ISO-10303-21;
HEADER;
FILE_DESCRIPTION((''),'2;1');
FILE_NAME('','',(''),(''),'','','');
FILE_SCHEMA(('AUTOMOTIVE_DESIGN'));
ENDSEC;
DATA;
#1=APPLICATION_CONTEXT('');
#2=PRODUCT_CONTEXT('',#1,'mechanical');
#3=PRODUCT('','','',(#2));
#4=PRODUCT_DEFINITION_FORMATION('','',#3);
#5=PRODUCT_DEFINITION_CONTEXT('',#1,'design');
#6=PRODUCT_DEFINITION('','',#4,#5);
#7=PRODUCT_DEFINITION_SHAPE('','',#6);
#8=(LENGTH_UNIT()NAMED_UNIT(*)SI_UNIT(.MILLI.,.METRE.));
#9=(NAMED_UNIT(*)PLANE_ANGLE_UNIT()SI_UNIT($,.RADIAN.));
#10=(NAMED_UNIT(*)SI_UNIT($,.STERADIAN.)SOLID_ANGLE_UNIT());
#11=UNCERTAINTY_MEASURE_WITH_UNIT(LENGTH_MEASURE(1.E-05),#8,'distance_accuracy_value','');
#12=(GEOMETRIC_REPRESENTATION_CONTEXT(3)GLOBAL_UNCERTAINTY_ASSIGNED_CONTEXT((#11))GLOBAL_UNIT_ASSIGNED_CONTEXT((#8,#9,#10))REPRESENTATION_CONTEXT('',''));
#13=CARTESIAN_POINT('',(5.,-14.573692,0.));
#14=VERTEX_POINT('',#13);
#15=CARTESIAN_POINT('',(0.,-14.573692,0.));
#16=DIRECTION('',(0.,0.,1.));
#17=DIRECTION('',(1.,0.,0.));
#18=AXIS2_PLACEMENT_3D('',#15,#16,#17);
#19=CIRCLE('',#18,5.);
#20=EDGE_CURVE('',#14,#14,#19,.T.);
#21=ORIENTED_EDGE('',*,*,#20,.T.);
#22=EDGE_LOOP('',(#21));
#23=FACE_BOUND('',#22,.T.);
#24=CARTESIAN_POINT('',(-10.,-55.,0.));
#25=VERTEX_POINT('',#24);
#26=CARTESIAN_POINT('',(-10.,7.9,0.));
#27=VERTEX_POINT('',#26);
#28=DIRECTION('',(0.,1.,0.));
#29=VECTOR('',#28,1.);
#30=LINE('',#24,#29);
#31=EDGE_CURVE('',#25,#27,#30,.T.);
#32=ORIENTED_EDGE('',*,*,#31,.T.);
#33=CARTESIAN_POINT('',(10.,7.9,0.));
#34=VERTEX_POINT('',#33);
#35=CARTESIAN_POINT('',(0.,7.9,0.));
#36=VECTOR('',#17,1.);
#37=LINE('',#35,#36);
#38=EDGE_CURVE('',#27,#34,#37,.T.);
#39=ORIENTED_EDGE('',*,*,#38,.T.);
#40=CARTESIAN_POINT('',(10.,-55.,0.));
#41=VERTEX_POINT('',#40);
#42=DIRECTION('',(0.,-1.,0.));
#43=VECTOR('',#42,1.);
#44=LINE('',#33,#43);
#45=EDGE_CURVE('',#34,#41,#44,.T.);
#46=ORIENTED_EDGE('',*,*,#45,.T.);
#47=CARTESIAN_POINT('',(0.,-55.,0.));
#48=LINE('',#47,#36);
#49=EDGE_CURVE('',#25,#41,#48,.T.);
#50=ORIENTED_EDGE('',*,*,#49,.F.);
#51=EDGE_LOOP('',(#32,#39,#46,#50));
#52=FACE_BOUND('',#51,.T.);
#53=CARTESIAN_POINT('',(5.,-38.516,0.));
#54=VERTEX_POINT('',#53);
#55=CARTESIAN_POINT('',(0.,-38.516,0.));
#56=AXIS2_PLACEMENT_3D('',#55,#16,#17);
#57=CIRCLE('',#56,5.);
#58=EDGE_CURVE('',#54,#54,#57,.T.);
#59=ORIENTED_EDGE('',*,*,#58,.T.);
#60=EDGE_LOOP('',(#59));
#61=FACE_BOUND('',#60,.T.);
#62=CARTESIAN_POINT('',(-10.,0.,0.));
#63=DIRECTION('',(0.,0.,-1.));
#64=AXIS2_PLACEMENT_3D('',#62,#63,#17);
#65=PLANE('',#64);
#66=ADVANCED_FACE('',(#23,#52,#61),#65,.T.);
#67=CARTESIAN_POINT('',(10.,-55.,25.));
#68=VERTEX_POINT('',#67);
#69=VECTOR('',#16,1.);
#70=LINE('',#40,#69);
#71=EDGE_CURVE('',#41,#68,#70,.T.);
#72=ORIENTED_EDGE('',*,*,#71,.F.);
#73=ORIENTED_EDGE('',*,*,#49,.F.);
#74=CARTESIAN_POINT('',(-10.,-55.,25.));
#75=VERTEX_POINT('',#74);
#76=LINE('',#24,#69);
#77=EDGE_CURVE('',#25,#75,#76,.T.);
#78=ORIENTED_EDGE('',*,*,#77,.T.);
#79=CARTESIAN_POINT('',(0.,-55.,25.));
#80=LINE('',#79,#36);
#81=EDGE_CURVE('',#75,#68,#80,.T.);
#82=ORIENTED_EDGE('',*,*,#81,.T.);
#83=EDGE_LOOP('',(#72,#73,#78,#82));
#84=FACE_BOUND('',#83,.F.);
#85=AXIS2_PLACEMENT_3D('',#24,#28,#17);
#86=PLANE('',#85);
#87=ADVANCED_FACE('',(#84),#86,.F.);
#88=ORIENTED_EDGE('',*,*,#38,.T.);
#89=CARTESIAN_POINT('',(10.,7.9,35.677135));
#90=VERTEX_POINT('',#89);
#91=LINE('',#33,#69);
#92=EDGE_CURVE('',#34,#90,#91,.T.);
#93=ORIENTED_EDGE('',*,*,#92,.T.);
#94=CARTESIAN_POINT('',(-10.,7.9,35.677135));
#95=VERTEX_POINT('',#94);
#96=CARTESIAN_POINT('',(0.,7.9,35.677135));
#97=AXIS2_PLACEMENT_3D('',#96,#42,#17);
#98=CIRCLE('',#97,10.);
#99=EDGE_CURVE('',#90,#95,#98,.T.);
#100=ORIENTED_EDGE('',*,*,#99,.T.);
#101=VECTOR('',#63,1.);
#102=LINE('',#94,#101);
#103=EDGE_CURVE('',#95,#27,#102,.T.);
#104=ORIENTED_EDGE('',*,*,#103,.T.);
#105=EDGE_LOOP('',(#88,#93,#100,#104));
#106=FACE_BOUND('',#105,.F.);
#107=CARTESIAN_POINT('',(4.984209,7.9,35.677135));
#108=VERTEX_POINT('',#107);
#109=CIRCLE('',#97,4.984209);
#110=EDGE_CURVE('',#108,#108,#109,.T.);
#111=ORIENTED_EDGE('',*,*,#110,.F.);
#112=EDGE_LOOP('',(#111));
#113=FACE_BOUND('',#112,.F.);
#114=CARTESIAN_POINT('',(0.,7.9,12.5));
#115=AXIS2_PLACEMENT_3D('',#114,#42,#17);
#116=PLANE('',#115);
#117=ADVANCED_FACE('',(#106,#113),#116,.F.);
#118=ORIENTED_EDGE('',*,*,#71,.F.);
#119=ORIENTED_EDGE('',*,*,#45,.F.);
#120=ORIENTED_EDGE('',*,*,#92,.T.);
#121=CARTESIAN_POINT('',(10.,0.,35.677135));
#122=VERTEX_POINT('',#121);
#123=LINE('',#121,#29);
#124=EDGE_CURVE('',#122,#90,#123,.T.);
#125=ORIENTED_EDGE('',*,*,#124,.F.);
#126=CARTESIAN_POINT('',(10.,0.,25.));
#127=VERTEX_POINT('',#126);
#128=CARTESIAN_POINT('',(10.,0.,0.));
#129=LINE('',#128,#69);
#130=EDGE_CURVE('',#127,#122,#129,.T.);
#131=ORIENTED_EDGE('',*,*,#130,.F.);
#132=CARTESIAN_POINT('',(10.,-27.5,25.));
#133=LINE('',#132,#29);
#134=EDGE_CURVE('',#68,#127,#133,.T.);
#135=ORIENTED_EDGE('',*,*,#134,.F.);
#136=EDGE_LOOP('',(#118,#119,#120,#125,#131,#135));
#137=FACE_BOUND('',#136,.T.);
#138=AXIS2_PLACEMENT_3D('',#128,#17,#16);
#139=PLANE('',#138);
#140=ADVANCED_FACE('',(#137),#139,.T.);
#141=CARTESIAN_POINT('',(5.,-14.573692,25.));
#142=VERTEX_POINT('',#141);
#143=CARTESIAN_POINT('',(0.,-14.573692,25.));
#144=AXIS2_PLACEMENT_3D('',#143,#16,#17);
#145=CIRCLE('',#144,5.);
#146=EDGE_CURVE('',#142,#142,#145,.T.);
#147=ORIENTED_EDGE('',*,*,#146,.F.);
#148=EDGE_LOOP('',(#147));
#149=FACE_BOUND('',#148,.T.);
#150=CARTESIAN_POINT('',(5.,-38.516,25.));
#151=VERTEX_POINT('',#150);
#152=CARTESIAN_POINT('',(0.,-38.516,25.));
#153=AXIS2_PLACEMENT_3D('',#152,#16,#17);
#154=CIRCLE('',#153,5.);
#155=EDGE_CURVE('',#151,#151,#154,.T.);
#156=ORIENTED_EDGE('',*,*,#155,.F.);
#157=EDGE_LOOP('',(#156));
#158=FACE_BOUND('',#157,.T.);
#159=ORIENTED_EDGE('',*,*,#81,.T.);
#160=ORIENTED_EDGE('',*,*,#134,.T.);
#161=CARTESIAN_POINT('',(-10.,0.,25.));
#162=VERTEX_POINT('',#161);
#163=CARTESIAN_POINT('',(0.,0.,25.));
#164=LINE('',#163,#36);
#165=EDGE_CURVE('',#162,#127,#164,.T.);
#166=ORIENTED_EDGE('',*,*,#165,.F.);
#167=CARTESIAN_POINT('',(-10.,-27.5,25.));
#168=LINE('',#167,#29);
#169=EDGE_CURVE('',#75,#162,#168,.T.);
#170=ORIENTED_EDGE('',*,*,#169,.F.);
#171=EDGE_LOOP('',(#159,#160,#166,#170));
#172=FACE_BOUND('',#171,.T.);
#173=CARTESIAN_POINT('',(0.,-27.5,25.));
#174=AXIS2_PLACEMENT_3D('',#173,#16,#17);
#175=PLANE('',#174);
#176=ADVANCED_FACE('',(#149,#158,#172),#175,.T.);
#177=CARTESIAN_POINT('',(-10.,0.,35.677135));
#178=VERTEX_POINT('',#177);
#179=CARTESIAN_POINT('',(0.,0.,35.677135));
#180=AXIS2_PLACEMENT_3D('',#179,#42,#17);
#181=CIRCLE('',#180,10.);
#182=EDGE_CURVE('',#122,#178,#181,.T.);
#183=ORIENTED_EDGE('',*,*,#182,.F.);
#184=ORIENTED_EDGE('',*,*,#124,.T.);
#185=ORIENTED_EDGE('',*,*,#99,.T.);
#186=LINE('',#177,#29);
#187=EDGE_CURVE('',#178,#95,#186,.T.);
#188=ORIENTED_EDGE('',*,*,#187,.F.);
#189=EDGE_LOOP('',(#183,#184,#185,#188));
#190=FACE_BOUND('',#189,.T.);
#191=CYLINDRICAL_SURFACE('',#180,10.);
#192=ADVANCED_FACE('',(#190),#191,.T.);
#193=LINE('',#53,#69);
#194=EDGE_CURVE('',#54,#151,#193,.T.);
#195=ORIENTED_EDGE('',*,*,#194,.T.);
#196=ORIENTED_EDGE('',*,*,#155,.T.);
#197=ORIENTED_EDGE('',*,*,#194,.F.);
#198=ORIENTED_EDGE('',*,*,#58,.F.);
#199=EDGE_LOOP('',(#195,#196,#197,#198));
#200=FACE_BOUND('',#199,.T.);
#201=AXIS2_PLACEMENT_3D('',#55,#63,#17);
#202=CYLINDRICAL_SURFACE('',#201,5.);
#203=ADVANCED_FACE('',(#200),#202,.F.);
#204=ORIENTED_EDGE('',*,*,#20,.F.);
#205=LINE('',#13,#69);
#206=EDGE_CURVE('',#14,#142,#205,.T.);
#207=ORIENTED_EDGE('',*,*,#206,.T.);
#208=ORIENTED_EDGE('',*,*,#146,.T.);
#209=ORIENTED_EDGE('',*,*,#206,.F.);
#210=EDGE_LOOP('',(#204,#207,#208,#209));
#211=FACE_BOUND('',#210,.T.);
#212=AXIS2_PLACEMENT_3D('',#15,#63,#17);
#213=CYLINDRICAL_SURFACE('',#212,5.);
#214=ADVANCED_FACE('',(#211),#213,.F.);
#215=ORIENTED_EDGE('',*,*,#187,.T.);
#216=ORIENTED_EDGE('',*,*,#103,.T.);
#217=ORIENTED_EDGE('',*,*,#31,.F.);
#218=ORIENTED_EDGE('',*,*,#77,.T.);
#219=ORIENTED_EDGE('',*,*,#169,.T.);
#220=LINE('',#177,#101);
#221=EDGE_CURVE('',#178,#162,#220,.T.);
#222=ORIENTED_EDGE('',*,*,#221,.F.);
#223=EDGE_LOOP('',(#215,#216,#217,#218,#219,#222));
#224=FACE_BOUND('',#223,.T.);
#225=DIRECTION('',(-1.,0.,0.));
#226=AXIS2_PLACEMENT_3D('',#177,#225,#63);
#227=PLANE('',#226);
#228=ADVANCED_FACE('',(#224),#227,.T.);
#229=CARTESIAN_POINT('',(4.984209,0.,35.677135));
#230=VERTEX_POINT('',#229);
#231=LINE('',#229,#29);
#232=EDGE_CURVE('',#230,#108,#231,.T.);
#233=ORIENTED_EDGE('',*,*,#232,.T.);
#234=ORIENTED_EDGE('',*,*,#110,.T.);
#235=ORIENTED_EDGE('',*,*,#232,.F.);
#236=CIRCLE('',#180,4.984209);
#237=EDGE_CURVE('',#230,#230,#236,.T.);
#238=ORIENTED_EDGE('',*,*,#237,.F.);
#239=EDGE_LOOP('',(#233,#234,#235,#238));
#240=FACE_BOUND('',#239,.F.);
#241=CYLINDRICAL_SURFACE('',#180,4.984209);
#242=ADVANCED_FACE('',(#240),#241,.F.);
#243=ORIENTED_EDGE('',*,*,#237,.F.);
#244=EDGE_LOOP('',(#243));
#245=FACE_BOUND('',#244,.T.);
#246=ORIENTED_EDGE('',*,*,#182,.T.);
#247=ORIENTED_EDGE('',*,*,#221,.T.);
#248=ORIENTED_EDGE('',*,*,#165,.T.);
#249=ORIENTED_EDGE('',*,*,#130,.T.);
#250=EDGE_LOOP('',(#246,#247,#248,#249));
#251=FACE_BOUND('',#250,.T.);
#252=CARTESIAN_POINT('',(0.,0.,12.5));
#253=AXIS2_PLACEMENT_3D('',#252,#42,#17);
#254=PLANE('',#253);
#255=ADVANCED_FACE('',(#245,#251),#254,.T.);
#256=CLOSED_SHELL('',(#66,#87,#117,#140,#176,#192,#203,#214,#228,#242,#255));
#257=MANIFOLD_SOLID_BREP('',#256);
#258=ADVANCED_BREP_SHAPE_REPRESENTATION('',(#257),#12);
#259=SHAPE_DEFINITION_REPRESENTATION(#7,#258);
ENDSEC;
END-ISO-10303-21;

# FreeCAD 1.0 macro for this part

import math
import FreeCAD as App
import Part
import Sketcher
from FreeCAD import Vector

doc = App.newDocument("Part")
body = doc.addObject("PartDesign::Body", "Body")

sketch1 = doc.addObject("Sketcher::SketchObject", "Sketch")
body.addObject(sketch1)
sketch1.AttachmentSupport = (doc.XY_Plane, [""])
sketch1.MapMode = "FlatFace"
sketch1.addGeometry(Part.LineSegment(Vector(-10, 0, 0), Vector(-10, -55, 0)), False)
sketch1.addGeometry(Part.LineSegment(Vector(-10, -55, 0), Vector(10, -55, 0)), False)
sketch1.addGeometry(Part.LineSegment(Vector(10, -55, 0), Vector(10, 0, 0)), False)
sketch1.addGeometry(Part.LineSegment(Vector(10, 0, 0), Vector(-10, 0, 0)), False)
sketch1.addGeometry(Part.Circle(Vector(0, -38.516, 0), Vector(0, 0, 1), 5), False)
sketch1.addGeometry(Part.Circle(Vector(0, -14.573692, 0), Vector(0, 0, 1), 5), False)
sketch1.addConstraint(Sketcher.Constraint("Coincident", 0, 2, 1, 1))
sketch1.addConstraint(Sketcher.Constraint("Coincident", 1, 2, 2, 1))
sketch1.addConstraint(Sketcher.Constraint("Coincident", 2, 2, 3, 1))
sketch1.addConstraint(Sketcher.Constraint("Coincident", 3, 2, 0, 1))
sketch1.addConstraint(Sketcher.Constraint("Vertical", 0))
sketch1.addConstraint(Sketcher.Constraint("Horizontal", 1))
sketch1.addConstraint(Sketcher.Constraint("Vertical", 2))
sketch1.addConstraint(Sketcher.Constraint("Horizontal", 3))
sketch1.addConstraint(Sketcher.Constraint("Equal", 4, 5))
sketch1.addConstraint(Sketcher.Constraint("Symmetric", 2, 2, 3, 2, -1, 1))
sketch1.addConstraint(Sketcher.Constraint("PointOnObject", 4, 3, -2))
sketch1.addConstraint(Sketcher.Constraint("PointOnObject", 5, 3, -2))
sketch1.addConstraint(Sketcher.Constraint("Diameter", 4, 10.0))
sketch1.addConstraint(Sketcher.Constraint("DistanceX", 1, 1, 1, 2, 20.0))
sketch1.addConstraint(Sketcher.Constraint("DistanceY", 0, 2, 0, 1, 55.0))
sketch1.addConstraint(Sketcher.Constraint("DistanceY", 4, 3, -1, 1, 38.516))
sketch1.addConstraint(Sketcher.Constraint("DistanceY", 5, 3, -1, 1, 14.573692))
pad1 = doc.addObject("PartDesign::Pad", "Pad")
body.addObject(pad1)
pad1.Profile = sketch1
pad1.Length = 25

sketch2 = doc.addObject("Sketcher::SketchObject", "Sketch001")
body.addObject(sketch2)
sketch2.AttachmentSupport = (doc.XZ_Plane, [""])
sketch2.MapMode = "FlatFace"
sketch2.addGeometry(Part.LineSegment(Vector(-10, 0, 0), Vector(10, 0, 0)), False)
sketch2.addGeometry(Part.LineSegment(Vector(10, 0, 0), Vector(10, 35.677135, 0)), False)
sketch2.addGeometry(Part.ArcOfCircle(Part.Circle(Vector(0, 35.677135, 0), Vector(0, 0, 1), 10), math.radians(0), math.radians(180)), False)
sketch2.addGeometry(Part.LineSegment(Vector(-10, 35.677135, 0), Vector(-10, 0, 0)), False)
sketch2.addGeometry(Part.Circle(Vector(0, 35.677135, 0), Vector(0, 0, 1), 4.984209), False)
sketch2.addConstraint(Sketcher.Constraint("Coincident", 0, 2, 1, 1))
sketch2.addConstraint(Sketcher.Constraint("Tangent", 1, 2, 2, 1))
sketch2.addConstraint(Sketcher.Constraint("Tangent", 2, 2, 3, 1))
sketch2.addConstraint(Sketcher.Constraint("Coincident", 3, 2, 0, 1))
sketch2.addConstraint(Sketcher.Constraint("Horizontal", 0))
sketch2.addConstraint(Sketcher.Constraint("Vertical", 1))
sketch2.addConstraint(Sketcher.Constraint("Vertical", 3))
sketch2.addConstraint(Sketcher.Constraint("Coincident", 4, 3, 2, 3))
sketch2.addConstraint(Sketcher.Constraint("Symmetric", 0, 2, 3, 2, -1, 1))
sketch2.addConstraint(Sketcher.Constraint("Radius", 2, 10.0))
sketch2.addConstraint(Sketcher.Constraint("Diameter", 4, 9.968418))
sketch2.addConstraint(Sketcher.Constraint("DistanceY", 1, 1, 1, 2, 35.677135))
pad2 = doc.addObject("PartDesign::Pad", "Pad001")
body.addObject(pad2)
pad2.Profile = sketch2
pad2.Length = 7.9
pad2.Reversed = True

doc.recompute()
